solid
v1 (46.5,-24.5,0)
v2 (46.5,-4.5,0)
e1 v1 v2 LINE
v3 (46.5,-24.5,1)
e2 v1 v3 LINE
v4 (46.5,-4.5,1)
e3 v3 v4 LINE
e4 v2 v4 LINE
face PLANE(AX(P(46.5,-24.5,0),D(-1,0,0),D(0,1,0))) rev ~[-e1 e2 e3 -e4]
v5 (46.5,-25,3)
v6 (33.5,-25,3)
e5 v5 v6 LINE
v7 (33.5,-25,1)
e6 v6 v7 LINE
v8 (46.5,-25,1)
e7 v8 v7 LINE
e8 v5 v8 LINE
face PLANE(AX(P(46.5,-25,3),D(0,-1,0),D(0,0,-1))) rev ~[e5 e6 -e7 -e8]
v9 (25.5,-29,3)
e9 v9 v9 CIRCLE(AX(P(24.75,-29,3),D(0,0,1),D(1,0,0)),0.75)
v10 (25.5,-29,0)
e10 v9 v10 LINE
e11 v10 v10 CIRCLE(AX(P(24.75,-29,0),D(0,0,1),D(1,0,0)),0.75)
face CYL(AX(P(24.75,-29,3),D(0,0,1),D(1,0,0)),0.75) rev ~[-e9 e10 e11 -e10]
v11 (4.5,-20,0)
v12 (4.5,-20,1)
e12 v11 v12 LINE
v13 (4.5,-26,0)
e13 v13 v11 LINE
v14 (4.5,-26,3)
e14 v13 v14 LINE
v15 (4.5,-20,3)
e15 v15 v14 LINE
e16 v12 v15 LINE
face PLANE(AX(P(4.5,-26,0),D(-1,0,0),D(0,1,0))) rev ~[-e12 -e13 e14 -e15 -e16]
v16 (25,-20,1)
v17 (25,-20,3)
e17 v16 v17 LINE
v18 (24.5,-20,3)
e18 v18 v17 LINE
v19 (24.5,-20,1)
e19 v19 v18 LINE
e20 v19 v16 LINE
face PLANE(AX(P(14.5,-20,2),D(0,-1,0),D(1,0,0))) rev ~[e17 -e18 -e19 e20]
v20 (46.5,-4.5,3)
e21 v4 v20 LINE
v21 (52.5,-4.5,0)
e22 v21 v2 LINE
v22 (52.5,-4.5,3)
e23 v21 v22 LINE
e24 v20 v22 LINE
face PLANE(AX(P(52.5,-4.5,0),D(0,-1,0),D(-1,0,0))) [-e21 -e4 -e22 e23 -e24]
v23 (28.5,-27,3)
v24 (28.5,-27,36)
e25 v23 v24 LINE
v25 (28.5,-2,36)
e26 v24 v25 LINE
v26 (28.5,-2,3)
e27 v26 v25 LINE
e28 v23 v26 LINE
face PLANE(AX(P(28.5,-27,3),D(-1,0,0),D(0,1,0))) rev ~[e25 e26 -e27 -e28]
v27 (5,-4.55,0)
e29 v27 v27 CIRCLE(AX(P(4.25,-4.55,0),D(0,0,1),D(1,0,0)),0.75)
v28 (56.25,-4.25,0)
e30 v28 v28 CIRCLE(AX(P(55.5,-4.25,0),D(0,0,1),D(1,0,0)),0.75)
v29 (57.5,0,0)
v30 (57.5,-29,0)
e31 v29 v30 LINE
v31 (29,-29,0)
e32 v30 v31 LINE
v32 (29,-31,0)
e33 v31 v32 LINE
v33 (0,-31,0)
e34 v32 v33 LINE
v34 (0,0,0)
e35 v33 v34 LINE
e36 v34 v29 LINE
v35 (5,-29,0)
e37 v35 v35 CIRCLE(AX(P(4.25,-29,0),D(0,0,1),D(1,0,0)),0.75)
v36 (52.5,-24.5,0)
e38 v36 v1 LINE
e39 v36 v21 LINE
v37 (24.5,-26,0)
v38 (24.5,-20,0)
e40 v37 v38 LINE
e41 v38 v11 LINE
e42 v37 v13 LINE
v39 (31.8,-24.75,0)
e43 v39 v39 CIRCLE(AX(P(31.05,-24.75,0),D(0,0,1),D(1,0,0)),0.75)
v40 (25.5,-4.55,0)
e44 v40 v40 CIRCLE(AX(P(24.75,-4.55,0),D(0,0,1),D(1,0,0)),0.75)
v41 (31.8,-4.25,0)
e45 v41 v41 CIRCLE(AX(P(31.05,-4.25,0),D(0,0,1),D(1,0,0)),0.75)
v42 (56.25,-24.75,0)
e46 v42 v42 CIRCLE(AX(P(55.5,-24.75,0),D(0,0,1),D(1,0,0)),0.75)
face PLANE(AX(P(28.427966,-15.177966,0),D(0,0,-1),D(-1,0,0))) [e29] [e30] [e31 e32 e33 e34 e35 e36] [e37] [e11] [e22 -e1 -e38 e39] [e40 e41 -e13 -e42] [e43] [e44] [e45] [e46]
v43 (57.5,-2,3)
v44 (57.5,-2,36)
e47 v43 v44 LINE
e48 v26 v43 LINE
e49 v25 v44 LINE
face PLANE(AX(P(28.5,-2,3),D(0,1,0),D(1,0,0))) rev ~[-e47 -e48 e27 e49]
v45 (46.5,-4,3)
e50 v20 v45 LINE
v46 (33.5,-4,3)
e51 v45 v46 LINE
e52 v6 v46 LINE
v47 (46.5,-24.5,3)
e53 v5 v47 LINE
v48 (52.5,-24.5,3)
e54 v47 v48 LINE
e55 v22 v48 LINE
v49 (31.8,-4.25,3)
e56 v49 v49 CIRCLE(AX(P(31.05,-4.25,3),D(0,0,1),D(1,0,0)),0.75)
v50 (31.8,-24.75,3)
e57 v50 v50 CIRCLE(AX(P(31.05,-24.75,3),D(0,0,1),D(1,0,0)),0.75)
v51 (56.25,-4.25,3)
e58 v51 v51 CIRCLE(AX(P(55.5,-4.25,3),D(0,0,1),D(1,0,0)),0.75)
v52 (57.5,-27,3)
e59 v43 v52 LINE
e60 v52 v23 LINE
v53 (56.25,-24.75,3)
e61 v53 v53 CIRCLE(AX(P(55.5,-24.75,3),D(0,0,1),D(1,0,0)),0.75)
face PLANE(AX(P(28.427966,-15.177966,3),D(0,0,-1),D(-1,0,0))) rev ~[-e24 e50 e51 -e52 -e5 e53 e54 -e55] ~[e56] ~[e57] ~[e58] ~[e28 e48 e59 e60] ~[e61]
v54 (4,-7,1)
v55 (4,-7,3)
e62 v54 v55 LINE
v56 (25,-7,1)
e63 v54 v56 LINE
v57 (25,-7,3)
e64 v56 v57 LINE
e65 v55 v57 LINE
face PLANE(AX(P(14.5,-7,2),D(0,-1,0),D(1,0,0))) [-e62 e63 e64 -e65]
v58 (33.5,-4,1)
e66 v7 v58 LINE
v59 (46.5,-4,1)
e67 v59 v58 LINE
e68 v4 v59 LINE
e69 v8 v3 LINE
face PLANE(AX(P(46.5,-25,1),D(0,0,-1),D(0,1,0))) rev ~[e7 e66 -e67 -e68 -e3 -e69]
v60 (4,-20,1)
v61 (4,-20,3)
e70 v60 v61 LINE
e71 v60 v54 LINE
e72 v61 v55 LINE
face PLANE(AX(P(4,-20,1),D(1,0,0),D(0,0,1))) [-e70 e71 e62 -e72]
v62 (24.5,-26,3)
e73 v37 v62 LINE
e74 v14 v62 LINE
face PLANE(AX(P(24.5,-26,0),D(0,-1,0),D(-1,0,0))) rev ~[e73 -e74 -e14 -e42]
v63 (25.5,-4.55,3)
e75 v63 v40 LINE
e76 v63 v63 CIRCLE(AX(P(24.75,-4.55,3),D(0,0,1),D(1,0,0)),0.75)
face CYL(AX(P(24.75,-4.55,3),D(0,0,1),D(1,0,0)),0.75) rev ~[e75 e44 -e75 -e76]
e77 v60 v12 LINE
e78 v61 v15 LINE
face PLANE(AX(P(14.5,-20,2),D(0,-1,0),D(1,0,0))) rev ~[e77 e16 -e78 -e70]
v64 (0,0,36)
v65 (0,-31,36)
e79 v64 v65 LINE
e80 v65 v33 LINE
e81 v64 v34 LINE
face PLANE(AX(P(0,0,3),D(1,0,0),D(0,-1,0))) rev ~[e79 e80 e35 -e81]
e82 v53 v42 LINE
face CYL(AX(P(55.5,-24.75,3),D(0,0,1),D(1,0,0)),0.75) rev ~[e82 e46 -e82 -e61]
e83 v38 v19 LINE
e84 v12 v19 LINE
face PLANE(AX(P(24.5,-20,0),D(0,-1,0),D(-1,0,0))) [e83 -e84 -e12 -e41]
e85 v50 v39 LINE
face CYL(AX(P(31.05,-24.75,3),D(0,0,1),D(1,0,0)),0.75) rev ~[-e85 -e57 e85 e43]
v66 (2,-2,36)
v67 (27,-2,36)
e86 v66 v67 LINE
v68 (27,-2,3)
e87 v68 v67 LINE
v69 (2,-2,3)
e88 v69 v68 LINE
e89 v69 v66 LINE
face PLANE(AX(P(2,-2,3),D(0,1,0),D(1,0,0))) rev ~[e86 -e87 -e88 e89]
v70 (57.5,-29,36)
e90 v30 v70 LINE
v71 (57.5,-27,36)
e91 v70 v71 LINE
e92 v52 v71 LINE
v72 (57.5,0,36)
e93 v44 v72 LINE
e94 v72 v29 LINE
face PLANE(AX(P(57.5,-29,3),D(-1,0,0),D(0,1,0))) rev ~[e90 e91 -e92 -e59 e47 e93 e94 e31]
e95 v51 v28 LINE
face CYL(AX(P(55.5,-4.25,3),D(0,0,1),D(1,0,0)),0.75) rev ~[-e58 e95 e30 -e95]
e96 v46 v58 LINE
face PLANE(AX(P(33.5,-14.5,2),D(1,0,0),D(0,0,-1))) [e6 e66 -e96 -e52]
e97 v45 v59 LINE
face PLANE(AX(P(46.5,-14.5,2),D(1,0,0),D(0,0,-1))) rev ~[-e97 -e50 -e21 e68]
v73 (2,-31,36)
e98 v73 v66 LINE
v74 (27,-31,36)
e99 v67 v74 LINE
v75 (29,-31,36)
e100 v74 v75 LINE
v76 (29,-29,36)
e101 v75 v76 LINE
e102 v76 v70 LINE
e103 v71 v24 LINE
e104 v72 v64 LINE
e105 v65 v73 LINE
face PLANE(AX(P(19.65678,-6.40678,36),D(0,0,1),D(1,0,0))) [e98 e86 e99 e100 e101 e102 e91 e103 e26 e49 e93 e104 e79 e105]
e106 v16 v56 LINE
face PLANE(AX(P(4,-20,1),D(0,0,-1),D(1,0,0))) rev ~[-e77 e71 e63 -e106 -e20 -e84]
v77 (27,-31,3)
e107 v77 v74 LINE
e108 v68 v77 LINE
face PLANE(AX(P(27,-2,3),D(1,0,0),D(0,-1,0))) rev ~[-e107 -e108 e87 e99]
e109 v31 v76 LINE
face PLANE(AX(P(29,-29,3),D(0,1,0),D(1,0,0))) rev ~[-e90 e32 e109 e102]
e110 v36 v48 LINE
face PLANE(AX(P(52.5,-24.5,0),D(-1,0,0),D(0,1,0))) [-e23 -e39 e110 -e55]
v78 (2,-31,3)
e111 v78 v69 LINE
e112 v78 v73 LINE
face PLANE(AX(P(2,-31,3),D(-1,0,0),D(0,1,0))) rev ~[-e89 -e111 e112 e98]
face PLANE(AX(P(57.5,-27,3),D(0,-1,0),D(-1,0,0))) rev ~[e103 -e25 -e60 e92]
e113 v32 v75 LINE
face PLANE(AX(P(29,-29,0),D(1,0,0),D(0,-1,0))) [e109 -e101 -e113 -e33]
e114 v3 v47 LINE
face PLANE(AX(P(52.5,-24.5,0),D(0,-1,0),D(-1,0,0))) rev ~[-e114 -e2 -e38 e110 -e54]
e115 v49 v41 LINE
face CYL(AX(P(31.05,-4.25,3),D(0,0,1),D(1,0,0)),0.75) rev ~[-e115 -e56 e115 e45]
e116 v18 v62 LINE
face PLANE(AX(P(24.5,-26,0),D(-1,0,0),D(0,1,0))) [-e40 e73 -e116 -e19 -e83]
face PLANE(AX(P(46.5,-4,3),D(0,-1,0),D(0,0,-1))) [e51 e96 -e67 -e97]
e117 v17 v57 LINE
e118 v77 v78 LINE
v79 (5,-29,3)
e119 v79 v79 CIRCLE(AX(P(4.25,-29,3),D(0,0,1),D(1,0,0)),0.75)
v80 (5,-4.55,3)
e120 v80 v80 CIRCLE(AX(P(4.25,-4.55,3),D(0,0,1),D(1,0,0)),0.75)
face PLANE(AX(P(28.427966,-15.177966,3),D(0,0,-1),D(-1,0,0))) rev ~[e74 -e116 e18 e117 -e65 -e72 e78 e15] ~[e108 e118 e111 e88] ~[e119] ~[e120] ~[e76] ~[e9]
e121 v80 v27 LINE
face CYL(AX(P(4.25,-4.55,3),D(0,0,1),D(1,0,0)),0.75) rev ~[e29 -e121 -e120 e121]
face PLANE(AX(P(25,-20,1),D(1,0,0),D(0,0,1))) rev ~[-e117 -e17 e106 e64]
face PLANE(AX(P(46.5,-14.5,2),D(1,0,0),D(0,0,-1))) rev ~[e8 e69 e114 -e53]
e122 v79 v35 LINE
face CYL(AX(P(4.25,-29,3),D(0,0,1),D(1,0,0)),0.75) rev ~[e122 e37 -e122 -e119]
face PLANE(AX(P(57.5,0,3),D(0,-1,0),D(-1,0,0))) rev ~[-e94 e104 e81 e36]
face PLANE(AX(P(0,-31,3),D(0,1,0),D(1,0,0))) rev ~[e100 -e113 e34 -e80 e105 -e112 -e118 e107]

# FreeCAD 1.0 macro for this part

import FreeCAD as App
import Part
import Sketcher
from FreeCAD import Vector
Q = App.Units.Quantity


def add_polygon(sketch, points):
    """Adds a closed chain of lines whose ends are joined by coincident constraints."""
    first, n = sketch.GeometryCount, len(points)
    for a, b in zip(points, points[1:] + points[:1]):
        sketch.addGeometry(Part.LineSegment(App.Vector(*a, 0), App.Vector(*b, 0)), False)
    for i in range(n):
        sketch.addConstraint(Sketcher.Constraint("Coincident", first + i, 2, first + (i + 1) % n, 1))

doc = App.newDocument("Part")
body = doc.addObject("PartDesign::Body", "Body")

sketch1 = doc.addObject("Sketcher::SketchObject", "Sketch")
body.addObject(sketch1)
sketch1.AttachmentSupport = (doc.XY_Plane, [""])
sketch1.MapMode = "FlatFace"
add_polygon(sketch1, [(57.5, 0), (0, 0), (0, -31), (29, -31), (29, -29), (57.5, -29)])
sketch1.addConstraint(Sketcher.Constraint("Horizontal", 0))
sketch1.addConstraint(Sketcher.Constraint("Vertical", 1))
sketch1.addConstraint(Sketcher.Constraint("Horizontal", 2))
sketch1.addConstraint(Sketcher.Constraint("Vertical", 3))
sketch1.addConstraint(Sketcher.Constraint("Horizontal", 4))
sketch1.addConstraint(Sketcher.Constraint("Vertical", 5))
sketch1.addConstraint(Sketcher.Constraint("Coincident", 0, 2, -1, 1))
sketch1.addConstraint(Sketcher.Constraint("Equal", 2, 5))
sketch1.addConstraint(Sketcher.Constraint("DistanceX", 2, 1, 2, 2, Q("29 mm")))
sketch1.addConstraint(Sketcher.Constraint("DistanceY", 1, 2, 1, 1, Q("31 mm")))
sketch1.addConstraint(Sketcher.Constraint("DistanceX", 0, 2, 0, 1, Q("57.5 mm")))
pad1 = doc.addObject("PartDesign::Pad", "Pad")
body.addObject(pad1)
pad1.Profile = sketch1
pad1.Length = 3

sketch2 = doc.addObject("Sketcher::SketchObject", "Sketch001")
body.addObject(sketch2)
sketch2.AttachmentSupport = (doc.XY_Plane, [""])
sketch2.MapMode = "FlatFace"
sketch2.AttachmentOffset = App.Placement(Vector(0, 0, 3), App.Rotation())
sketch2.addGeometry(Part.Circle(Vector(31.1, -4.2, 0), Vector(0, 0, 1), 0.8), False)
sketch2.addConstraint(Sketcher.Constraint("Diameter", 0, Q("1.5 mm")))
sketch2.addConstraint(Sketcher.Constraint("DistanceX", -1, 1, 0, 3, Q("31.05 mm")))
sketch2.addConstraint(Sketcher.Constraint("DistanceY", 0, 3, -1, 1, Q("4.25 mm")))
pocket1 = doc.addObject("PartDesign::Pocket", "Pocket")
body.addObject(pocket1)
pocket1.Profile = sketch2
pocket1.Type = "UpToFirst"

sketch3 = doc.addObject("Sketcher::SketchObject", "Sketch002")
body.addObject(sketch3)
sketch3.AttachmentSupport = (doc.XY_Plane, [""])
sketch3.MapMode = "FlatFace"
sketch3.AttachmentOffset = App.Placement(Vector(0, 0, 3), App.Rotation())
sketch3.addGeometry(Part.Circle(Vector(55.5, -4.2, 0), Vector(0, 0, 1), 0.8), False)
sketch3.addConstraint(Sketcher.Constraint("Diameter", 0, Q("1.5 mm")))
sketch3.addConstraint(Sketcher.Constraint("DistanceX", -1, 1, 0, 3, Q("55.5 mm")))
sketch3.addConstraint(Sketcher.Constraint("DistanceY", 0, 3, -1, 1, Q("4.25 mm")))
pocket2 = doc.addObject("PartDesign::Pocket", "Pocket001")
body.addObject(pocket2)
pocket2.Profile = sketch3
pocket2.Type = "UpToFirst"

sketch4 = doc.addObject("Sketcher::SketchObject", "Sketch003")
body.addObject(sketch4)
sketch4.AttachmentSupport = (doc.XY_Plane, [""])
sketch4.MapMode = "FlatFace"
sketch4.AttachmentOffset = App.Placement(Vector(0, 0, 3), App.Rotation())
sketch4.addGeometry(Part.Circle(Vector(31.1, -24.8, 0), Vector(0, 0, 1), 0.8), False)
sketch4.addConstraint(Sketcher.Constraint("Diameter", 0, Q("1.5 mm")))
sketch4.addConstraint(Sketcher.Constraint("DistanceX", -1, 1, 0, 3, Q("31.05 mm")))
sketch4.addConstraint(Sketcher.Constraint("DistanceY", 0, 3, -1, 1, Q("24.75 mm")))
pocket3 = doc.addObject("PartDesign::Pocket", "Pocket002")
body.addObject(pocket3)
pocket3.Profile = sketch4
pocket3.Type = "UpToFirst"

sketch5 = doc.addObject("Sketcher::SketchObject", "Sketch004")
body.addObject(sketch5)
sketch5.AttachmentSupport = (doc.XY_Plane, [""])
sketch5.MapMode = "FlatFace"
sketch5.AttachmentOffset = App.Placement(Vector(0, 0, 3), App.Rotation())
sketch5.addGeometry(Part.Circle(Vector(55.5, -24.8, 0), Vector(0, 0, 1), 0.8), False)
sketch5.addConstraint(Sketcher.Constraint("Diameter", 0, Q("1.5 mm")))
sketch5.addConstraint(Sketcher.Constraint("DistanceX", -1, 1, 0, 3, Q("55.5 mm")))
sketch5.addConstraint(Sketcher.Constraint("DistanceY", 0, 3, -1, 1, Q("24.75 mm")))
pocket4 = doc.addObject("PartDesign::Pocket", "Pocket003")
body.addObject(pocket4)
pocket4.Profile = sketch5
pocket4.Type = "UpToFirst"

sketch6 = doc.addObject("Sketcher::SketchObject", "Sketch005")
body.addObject(sketch6)
sketch6.AttachmentSupport = (doc.XY_Plane, [""])
sketch6.MapMode = "FlatFace"
sketch6.AttachmentOffset = App.Placement(Vector(0, 0, 3), App.Rotation())
sketch6.addGeometry(Part.Circle(Vector(4.2, -29, 0), Vector(0, 0, 1), 0.8), False)
sketch6.addConstraint(Sketcher.Constraint("Diameter", 0, Q("1.5 mm")))
sketch6.addConstraint(Sketcher.Constraint("DistanceY", 0, 3, -1, 1, Q("29 mm")))
sketch6.addConstraint(Sketcher.Constraint("DistanceX", -1, 1, 0, 3, Q("4.25 mm")))
pocket5 = doc.addObject("PartDesign::Pocket", "Pocket004")
body.addObject(pocket5)
pocket5.Profile = sketch6
pocket5.Type = "UpToFirst"

sketch7 = doc.addObject("Sketcher::SketchObject", "Sketch006")
body.addObject(sketch7)
sketch7.AttachmentSupport = (doc.XY_Plane, [""])
sketch7.MapMode = "FlatFace"
sketch7.AttachmentOffset = App.Placement(Vector(0, 0, 3), App.Rotation())
sketch7.addGeometry(Part.Circle(Vector(24.8, -29, 0), Vector(0, 0, 1), 0.8), False)
sketch7.addConstraint(Sketcher.Constraint("Diameter", 0, Q("1.5 mm")))
sketch7.addConstraint(Sketcher.Constraint("DistanceY", 0, 3, -1, 1, Q("29 mm")))
sketch7.addConstraint(Sketcher.Constraint("DistanceX", -1, 1, 0, 3, Q("24.75 mm")))
pocket6 = doc.addObject("PartDesign::Pocket", "Pocket005")
body.addObject(pocket6)
pocket6.Profile = sketch7
pocket6.Type = "UpToFirst"

sketch8 = doc.addObject("Sketcher::SketchObject", "Sketch007")
body.addObject(sketch8)
sketch8.AttachmentSupport = (doc.XY_Plane, [""])
sketch8.MapMode = "FlatFace"
sketch8.AttachmentOffset = App.Placement(Vector(0, 0, 3), App.Rotation())
sketch8.addGeometry(Part.Circle(Vector(4.2, -4.5, 0), Vector(0, 0, 1), 0.8), False)
sketch8.addConstraint(Sketcher.Constraint("Diameter", 0, Q("1.5 mm")))
sketch8.addConstraint(Sketcher.Constraint("DistanceX", -1, 1, 0, 3, Q("4.25 mm")))
sketch8.addConstraint(Sketcher.Constraint("DistanceY", 0, 3, -1, 1, Q("4.55 mm")))
pocket7 = doc.addObject("PartDesign::Pocket", "Pocket006")
body.addObject(pocket7)
pocket7.Profile = sketch8
pocket7.Type = "UpToFirst"

sketch9 = doc.addObject("Sketcher::SketchObject", "Sketch008")
body.addObject(sketch9)
sketch9.AttachmentSupport = (doc.XY_Plane, [""])
sketch9.MapMode = "FlatFace"
sketch9.AttachmentOffset = App.Placement(Vector(0, 0, 3), App.Rotation())
sketch9.addGeometry(Part.Circle(Vector(24.8, -4.5, 0), Vector(0, 0, 1), 0.8), False)
sketch9.addConstraint(Sketcher.Constraint("Diameter", 0, Q("1.5 mm")))
sketch9.addConstraint(Sketcher.Constraint("DistanceX", -1, 1, 0, 3, Q("24.75 mm")))
sketch9.addConstraint(Sketcher.Constraint("DistanceY", 0, 3, -1, 1, Q("4.55 mm")))
pocket8 = doc.addObject("PartDesign::Pocket", "Pocket007")
body.addObject(pocket8)
pocket8.Profile = sketch9
pocket8.Type = "UpToFirst"

sketch10 = doc.addObject("Sketcher::SketchObject", "Sketch009")
body.addObject(sketch10)
sketch10.AttachmentSupport = (doc.XY_Plane, [""])
sketch10.MapMode = "FlatFace"
add_polygon(sketch10, [(24, -20), (24, -26), (4, -26), (4, -20)])
sketch10.addConstraint(Sketcher.Constraint("Vertical", 0))
sketch10.addConstraint(Sketcher.Constraint("Horizontal", 1))
sketch10.addConstraint(Sketcher.Constraint("Vertical", 2))
sketch10.addConstraint(Sketcher.Constraint("Horizontal", 3))
sketch10.addConstraint(Sketcher.Constraint("DistanceX", 1, 2, 1, 1, Q("20 mm")))
sketch10.addConstraint(Sketcher.Constraint("DistanceY", 0, 2, 0, 1, Q("6 mm")))
sketch10.addConstraint(Sketcher.Constraint("DistanceY", 0, 2, -1, 1, Q("26 mm")))
sketch10.addConstraint(Sketcher.Constraint("DistanceX", -1, 1, 0, 2, Q("24.5 mm")))
pocket9 = doc.addObject("PartDesign::Pocket", "Pocket008")
body.addObject(pocket9)
pocket9.Profile = sketch10
pocket9.Type = "UpToFirst"
pocket9.Reversed = True

sketch11 = doc.addObject("Sketcher::SketchObject", "Sketch010")
body.addObject(sketch11)
sketch11.AttachmentSupport = (doc.XY_Plane, [""])
sketch11.MapMode = "FlatFace"
add_polygon(sketch11, [(52, -4), (52, -24), (46, -24), (46, -4)])
sketch11.addConstraint(Sketcher.Constraint("Vertical", 0))
sketch11.addConstraint(Sketcher.Constraint("Horizontal", 1))
sketch11.addConstraint(Sketcher.Constraint("Vertical", 2))
sketch11.addConstraint(Sketcher.Constraint("Horizontal", 3))
sketch11.addConstraint(Sketcher.Constraint("DistanceX", 1, 2, 1, 1, Q("6 mm")))
sketch11.addConstraint(Sketcher.Constraint("DistanceY", 0, 2, 0, 1, Q("20 mm")))
sketch11.addConstraint(Sketcher.Constraint("DistanceX", -1, 1, 0, 2, Q("52.5 mm")))
sketch11.addConstraint(Sketcher.Constraint("DistanceY", 0, 2, -1, 1, Q("24.5 mm")))
pocket10 = doc.addObject("PartDesign::Pocket", "Pocket009")
body.addObject(pocket10)
pocket10.Profile = sketch11
pocket10.Type = "UpToFirst"
pocket10.Reversed = True

sketch12 = doc.addObject("Sketcher::SketchObject", "Sketch011")
body.addObject(sketch12)
sketch12.AttachmentSupport = (doc.XZ_Plane, [""])
sketch12.MapMode = "FlatFace"
sketch12.AttachmentOffset = App.Placement(Vector(0, 0, 20), App.Rotation())
add_polygon(sketch12, [(4, 3), (4, 1), (25, 1), (25, 3)])
sketch12.addConstraint(Sketcher.Constraint("Vertical", 0))
sketch12.addConstraint(Sketcher.Constraint("Horizontal", 1))
sketch12.addConstraint(Sketcher.Constraint("Vertical", 2))
sketch12.addConstraint(Sketcher.Constraint("Horizontal", 3))
sketch12.addConstraint(Sketcher.Constraint("DistanceX", 1, 1, 1, 2, Q("21 mm")))
sketch12.addConstraint(Sketcher.Constraint("DistanceY", 0, 2, 0, 1, Q("2 mm")))
sketch12.addConstraint(Sketcher.Constraint("DistanceX", -1, 1, 0, 2, Q("4 mm")))
sketch12.addConstraint(Sketcher.Constraint("DistanceY", -1, 1, 0, 2, Q("1 mm")))
pocket11 = doc.addObject("PartDesign::Pocket", "Pocket010")
body.addObject(pocket11)
pocket11.Profile = sketch12
pocket11.Length = 13

sketch13 = doc.addObject("Sketcher::SketchObject", "Sketch012")
body.addObject(sketch13)
sketch13.AttachmentSupport = (doc.YZ_Plane, [""])
sketch13.MapMode = "FlatFace"
sketch13.AttachmentOffset = App.Placement(Vector(0, 0, 46.5), App.Rotation())
add_polygon(sketch13, [(-4, 3), (-25, 3), (-25, 1), (-4, 1)])
sketch13.addConstraint(Sketcher.Constraint("Horizontal", 0))
sketch13.addConstraint(Sketcher.Constraint("Vertical", 1))
sketch13.addConstraint(Sketcher.Constraint("Horizontal", 2))
sketch13.addConstraint(Sketcher.Constraint("Vertical", 3))
sketch13.addConstraint(Sketcher.Constraint("DistanceX", 0, 2, 0, 1, Q("21 mm")))
sketch13.addConstraint(Sketcher.Constraint("DistanceY", 1, 2, 1, 1, Q("2 mm")))
sketch13.addConstraint(Sketcher.Constraint("DistanceX", 0, 2, -1, 1, Q("25 mm")))
sketch13.addConstraint(Sketcher.Constraint("DistanceY", -1, 1, 0, 2, Q("3 mm")))
pocket12 = doc.addObject("PartDesign::Pocket", "Pocket011")
body.addObject(pocket12)
pocket12.Profile = sketch13
pocket12.Length = 13

sketch14 = doc.addObject("Sketcher::SketchObject", "Sketch013")
body.addObject(sketch14)
sketch14.AttachmentSupport = (doc.XY_Plane, [""])
sketch14.MapMode = "FlatFace"
sketch14.AttachmentOffset = App.Placement(Vector(0, 0, 3), App.Rotation())
add_polygon(sketch14, [(0, -31), (2, -31), (2, -2), (27, -2), (27, -31), (29, -31), (29, -29), (57.5, -29), (57.5, -27), (28.5, -27), (28.5, -2), (57.5, -2), (57.5, 0), (0, 0)])
sketch14.addConstraint(Sketcher.Constraint("Horizontal", 0))
sketch14.addConstraint(Sketcher.Constraint("Vertical", 1))
sketch14.addConstraint(Sketcher.Constraint("Horizontal", 2))
sketch14.addConstraint(Sketcher.Constraint("Vertical", 3))
sketch14.addConstraint(Sketcher.Constraint("Horizontal", 4))
sketch14.addConstraint(Sketcher.Constraint("Vertical", 5))
sketch14.addConstraint(Sketcher.Constraint("Horizontal", 6))
sketch14.addConstraint(Sketcher.Constraint("Vertical", 7))
sketch14.addConstraint(Sketcher.Constraint("Horizontal", 8))
sketch14.addConstraint(Sketcher.Constraint("Vertical", 9))
sketch14.addConstraint(Sketcher.Constraint("Horizontal", 10))
sketch14.addConstraint(Sketcher.Constraint("Vertical", 11))
sketch14.addConstraint(Sketcher.Constraint("Horizontal", 12))
sketch14.addConstraint(Sketcher.Constraint("Vertical", 13))
sketch14.addConstraint(Sketcher.Constraint("Coincident", 12, 2, -1, 1))
sketch14.addConstraint(Sketcher.Constraint("Horizontal", 0, 2, 3, 2))
sketch14.addConstraint(Sketcher.Constraint("Horizontal", 2, 2, 9, 2))
sketch14.addConstraint(Sketcher.Constraint("Vertical", 7, 2, 10, 2))
sketch14.addConstraint(Sketcher.Constraint("Equal", 0, 4))
sketch14.addConstraint(Sketcher.Constraint("Equal", 10, 1))
sketch14.addConstraint(Sketcher.Constraint("Equal", 4, 5))
sketch14.addConstraint(Sketcher.Constraint("Equal", 5, 7))
sketch14.addConstraint(Sketcher.Constraint("Equal", 2, 9))
sketch14.addConstraint(Sketcher.Constraint("Equal", 7, 11))
sketch14.addConstraint(Sketcher.Constraint("DistanceX", 0, 1, 0, 2, Q("2 mm")))
sketch14.addConstraint(Sketcher.Constraint("DistanceX", 2, 1, 2, 2, Q("25 mm")))
sketch14.addConstraint(Sketcher.Constraint("DistanceX", 6, 1, 6, 2, Q("28.5 mm")))
pad2 = doc.addObject("PartDesign::Pad", "Pad001")
body.addObject(pad2)
pad2.Profile = sketch14
pad2.Length = 33

doc.recompute()
